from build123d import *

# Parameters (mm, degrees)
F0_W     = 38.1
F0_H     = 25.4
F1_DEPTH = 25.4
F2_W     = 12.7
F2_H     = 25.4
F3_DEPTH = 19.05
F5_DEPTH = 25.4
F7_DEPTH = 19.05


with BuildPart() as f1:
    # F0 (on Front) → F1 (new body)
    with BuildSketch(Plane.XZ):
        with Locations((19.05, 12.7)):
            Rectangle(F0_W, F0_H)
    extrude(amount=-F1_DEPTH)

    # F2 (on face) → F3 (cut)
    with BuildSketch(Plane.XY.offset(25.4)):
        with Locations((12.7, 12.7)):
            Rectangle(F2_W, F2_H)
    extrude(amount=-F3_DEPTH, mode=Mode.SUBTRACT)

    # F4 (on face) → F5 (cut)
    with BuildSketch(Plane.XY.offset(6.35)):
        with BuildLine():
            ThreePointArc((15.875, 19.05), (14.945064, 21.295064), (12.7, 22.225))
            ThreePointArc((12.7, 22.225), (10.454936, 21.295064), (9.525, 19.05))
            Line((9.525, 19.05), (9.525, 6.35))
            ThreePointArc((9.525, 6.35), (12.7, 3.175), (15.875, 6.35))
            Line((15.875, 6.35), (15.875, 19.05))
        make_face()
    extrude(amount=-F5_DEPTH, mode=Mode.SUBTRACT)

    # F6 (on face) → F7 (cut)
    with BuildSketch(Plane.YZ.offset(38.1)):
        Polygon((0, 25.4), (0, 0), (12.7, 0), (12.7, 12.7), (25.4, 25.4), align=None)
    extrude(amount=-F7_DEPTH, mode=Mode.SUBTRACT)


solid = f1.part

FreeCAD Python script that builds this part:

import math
import FreeCAD as App
import Part
import Sketcher
from FreeCAD import Vector
Q = App.Units.Quantity


def add_polygon(sketch, points):
    """Adds a closed chain of lines whose ends are joined by coincident constraints."""
    first, n = sketch.GeometryCount, len(points)
    for a, b in zip(points, points[1:] + points[:1]):
        sketch.addGeometry(Part.LineSegment(App.Vector(*a, 0), App.Vector(*b, 0)), False)
    for i in range(n):
        sketch.addConstraint(Sketcher.Constraint("Coincident", first + i, 2, first + (i + 1) % n, 1))

doc = App.newDocument("Part")
body = doc.addObject("PartDesign::Body", "Body")

# Sketch on XZ plane
sketch1 = body.newObject("Sketcher::SketchObject", "Sketch")
sketch1.AttachmentSupport = (doc.getObject("XZ_Plane"), [""])
sketch1.MapMode = "FlatFace"
add_polygon(sketch1, [(0, 25), (0, 0), (38, 0), (38, 25)])  # lines 0-3
sketch1.addConstraint([
    Sketcher.Constraint("Vertical", 0),
    Sketcher.Constraint("Horizontal", 1),
    Sketcher.Constraint("Vertical", 2),
    Sketcher.Constraint("Horizontal", 3),
    Sketcher.Constraint("Coincident", 0, 2, -1, 1),
    Sketcher.Constraint("DistanceY", 0, 2, 0, 1, Q("1 in")),
    Sketcher.Constraint("DistanceX", 1, 1, 1, 2, Q("1.5 in")),
])
pad1 = body.newObject("PartDesign::Pad", "Pad")
pad1.Profile = sketch1
pad1.Length = Q("1 in")
pad1.Reversed = True

# Sketch on XY plane
sketch2 = body.newObject("Sketcher::SketchObject", "Sketch001")
sketch2.AttachmentSupport = (doc.getObject("XY_Plane"), [""])
sketch2.MapMode = "FlatFace"
sketch2.AttachmentOffset = App.Placement(Vector(0, 0, 1 * 25.4), App.Rotation())
add_polygon(sketch2, [(6, 25), (6, 0), (19, 0), (19, 25)])  # lines 0-3
sketch2.addConstraint([
    Sketcher.Constraint("Vertical", 0),
    Sketcher.Constraint("Horizontal", 1),
    Sketcher.Constraint("Vertical", 2),
    Sketcher.Constraint("Horizontal", 3),
    Sketcher.Constraint("PointOnObject", 0, 2, -1),
    Sketcher.Constraint("DistanceY", 0, 2, 0, 1, Q("1 in")),
    Sketcher.Constraint("DistanceX", 1, 1, 1, 2, Q("0.5 in")),
    Sketcher.Constraint("DistanceX", -1, 1, 0, 2, Q("0.25 in")),
])
pocket1 = body.newObject("PartDesign::Pocket", "Pocket")
pocket1.Profile = sketch2
pocket1.Length = Q("0.75 in")

# Sketch on XY plane
sketch3 = body.newObject("Sketcher::SketchObject", "Sketch002")
sketch3.AttachmentSupport = (doc.getObject("XY_Plane"), [""])
sketch3.MapMode = "FlatFace"
sketch3.AttachmentOffset = App.Placement(Vector(0, 0, 0.25 * 25.4), App.Rotation())
sketch3.addGeometry([
    Part.ArcOfCircle(Part.Circle(Vector(12.7, 19, 0), Vector(0, 0, 1), 3.2), math.radians(0), math.radians(90)),  # 0
    Part.ArcOfCircle(Part.Circle(Vector(12.7, 19, 0), Vector(0, 0, 1), 3.2), math.radians(90), math.radians(180)),  # 1
    Part.LineSegment(Vector(9.5, 19.1, 0), Vector(9.5, 6.3, 0)),  # 2
    Part.ArcOfCircle(Part.Circle(Vector(12.7, 6.3, 0), Vector(0, 0, 1), 3.2), math.radians(180), math.radians(360)),  # 3
    Part.LineSegment(Vector(15.9, 6.3, 0), Vector(15.9, 19.1, 0)),  # 4
], False)
sketch3.addConstraint([
    Sketcher.Constraint("Tangent", 0, 2, 1, 1),
    Sketcher.Constraint("Tangent", 1, 2, 2, 1),
    Sketcher.Constraint("Tangent", 2, 2, 3, 1),
    Sketcher.Constraint("Tangent", 3, 2, 4, 1),
    Sketcher.Constraint("Tangent", 4, 2, 0, 1),
    Sketcher.Constraint("Vertical", 2),
    Sketcher.Constraint("Vertical", 4),
    Sketcher.Constraint("Equal", 0, 1),
    Sketcher.Constraint("Vertical", 3, 3, 0, 2),
    Sketcher.Constraint("DistanceY", 2, 2, 2, 1, Q("0.5 in")),
    Sketcher.Constraint("Radius", 0, Q("0.125 in")),
    Sketcher.Constraint("DistanceX", -1, 1, 0, 3, Q("0.5 in")),
    Sketcher.Constraint("DistanceY", -1, 1, 0, 3, Q("0.75 in")),
])
pocket2 = body.newObject("PartDesign::Pocket", "Pocket001")
pocket2.Profile = sketch3
pocket2.Length = Q("1 in")

# Sketch on YZ plane
sketch4 = body.newObject("Sketcher::SketchObject", "Sketch003")
sketch4.AttachmentSupport = (doc.getObject("YZ_Plane"), [""])
sketch4.MapMode = "FlatFace"
sketch4.AttachmentOffset = App.Placement(Vector(0, 0, 1.5 * 25.4), App.Rotation())
add_polygon(sketch4, [(0, 25), (0, 0), (13, 0), (13, 13), (25, 25)])  # lines 0-4
sketch4.addConstraint([
    Sketcher.Constraint("Vertical", 0),
    Sketcher.Constraint("Horizontal", 1),
    Sketcher.Constraint("Vertical", 2),
    Sketcher.Constraint("Horizontal", 4),
    Sketcher.Constraint("Coincident", 0, 2, -1, 1),
    Sketcher.Constraint("Equal", 4, 0),
    Sketcher.Constraint("Equal", 1, 2),
    Sketcher.Constraint("DistanceX", 4, 2, 4, 1, Q("1 in")),
    Sketcher.Constraint("DistanceX", 1, 1, 1, 2, Q("0.5 in")),
])
pocket3 = body.newObject("PartDesign::Pocket", "Pocket002")
pocket3.Profile = sketch4
pocket3.Length = Q("0.75 in")

doc.recompute()
